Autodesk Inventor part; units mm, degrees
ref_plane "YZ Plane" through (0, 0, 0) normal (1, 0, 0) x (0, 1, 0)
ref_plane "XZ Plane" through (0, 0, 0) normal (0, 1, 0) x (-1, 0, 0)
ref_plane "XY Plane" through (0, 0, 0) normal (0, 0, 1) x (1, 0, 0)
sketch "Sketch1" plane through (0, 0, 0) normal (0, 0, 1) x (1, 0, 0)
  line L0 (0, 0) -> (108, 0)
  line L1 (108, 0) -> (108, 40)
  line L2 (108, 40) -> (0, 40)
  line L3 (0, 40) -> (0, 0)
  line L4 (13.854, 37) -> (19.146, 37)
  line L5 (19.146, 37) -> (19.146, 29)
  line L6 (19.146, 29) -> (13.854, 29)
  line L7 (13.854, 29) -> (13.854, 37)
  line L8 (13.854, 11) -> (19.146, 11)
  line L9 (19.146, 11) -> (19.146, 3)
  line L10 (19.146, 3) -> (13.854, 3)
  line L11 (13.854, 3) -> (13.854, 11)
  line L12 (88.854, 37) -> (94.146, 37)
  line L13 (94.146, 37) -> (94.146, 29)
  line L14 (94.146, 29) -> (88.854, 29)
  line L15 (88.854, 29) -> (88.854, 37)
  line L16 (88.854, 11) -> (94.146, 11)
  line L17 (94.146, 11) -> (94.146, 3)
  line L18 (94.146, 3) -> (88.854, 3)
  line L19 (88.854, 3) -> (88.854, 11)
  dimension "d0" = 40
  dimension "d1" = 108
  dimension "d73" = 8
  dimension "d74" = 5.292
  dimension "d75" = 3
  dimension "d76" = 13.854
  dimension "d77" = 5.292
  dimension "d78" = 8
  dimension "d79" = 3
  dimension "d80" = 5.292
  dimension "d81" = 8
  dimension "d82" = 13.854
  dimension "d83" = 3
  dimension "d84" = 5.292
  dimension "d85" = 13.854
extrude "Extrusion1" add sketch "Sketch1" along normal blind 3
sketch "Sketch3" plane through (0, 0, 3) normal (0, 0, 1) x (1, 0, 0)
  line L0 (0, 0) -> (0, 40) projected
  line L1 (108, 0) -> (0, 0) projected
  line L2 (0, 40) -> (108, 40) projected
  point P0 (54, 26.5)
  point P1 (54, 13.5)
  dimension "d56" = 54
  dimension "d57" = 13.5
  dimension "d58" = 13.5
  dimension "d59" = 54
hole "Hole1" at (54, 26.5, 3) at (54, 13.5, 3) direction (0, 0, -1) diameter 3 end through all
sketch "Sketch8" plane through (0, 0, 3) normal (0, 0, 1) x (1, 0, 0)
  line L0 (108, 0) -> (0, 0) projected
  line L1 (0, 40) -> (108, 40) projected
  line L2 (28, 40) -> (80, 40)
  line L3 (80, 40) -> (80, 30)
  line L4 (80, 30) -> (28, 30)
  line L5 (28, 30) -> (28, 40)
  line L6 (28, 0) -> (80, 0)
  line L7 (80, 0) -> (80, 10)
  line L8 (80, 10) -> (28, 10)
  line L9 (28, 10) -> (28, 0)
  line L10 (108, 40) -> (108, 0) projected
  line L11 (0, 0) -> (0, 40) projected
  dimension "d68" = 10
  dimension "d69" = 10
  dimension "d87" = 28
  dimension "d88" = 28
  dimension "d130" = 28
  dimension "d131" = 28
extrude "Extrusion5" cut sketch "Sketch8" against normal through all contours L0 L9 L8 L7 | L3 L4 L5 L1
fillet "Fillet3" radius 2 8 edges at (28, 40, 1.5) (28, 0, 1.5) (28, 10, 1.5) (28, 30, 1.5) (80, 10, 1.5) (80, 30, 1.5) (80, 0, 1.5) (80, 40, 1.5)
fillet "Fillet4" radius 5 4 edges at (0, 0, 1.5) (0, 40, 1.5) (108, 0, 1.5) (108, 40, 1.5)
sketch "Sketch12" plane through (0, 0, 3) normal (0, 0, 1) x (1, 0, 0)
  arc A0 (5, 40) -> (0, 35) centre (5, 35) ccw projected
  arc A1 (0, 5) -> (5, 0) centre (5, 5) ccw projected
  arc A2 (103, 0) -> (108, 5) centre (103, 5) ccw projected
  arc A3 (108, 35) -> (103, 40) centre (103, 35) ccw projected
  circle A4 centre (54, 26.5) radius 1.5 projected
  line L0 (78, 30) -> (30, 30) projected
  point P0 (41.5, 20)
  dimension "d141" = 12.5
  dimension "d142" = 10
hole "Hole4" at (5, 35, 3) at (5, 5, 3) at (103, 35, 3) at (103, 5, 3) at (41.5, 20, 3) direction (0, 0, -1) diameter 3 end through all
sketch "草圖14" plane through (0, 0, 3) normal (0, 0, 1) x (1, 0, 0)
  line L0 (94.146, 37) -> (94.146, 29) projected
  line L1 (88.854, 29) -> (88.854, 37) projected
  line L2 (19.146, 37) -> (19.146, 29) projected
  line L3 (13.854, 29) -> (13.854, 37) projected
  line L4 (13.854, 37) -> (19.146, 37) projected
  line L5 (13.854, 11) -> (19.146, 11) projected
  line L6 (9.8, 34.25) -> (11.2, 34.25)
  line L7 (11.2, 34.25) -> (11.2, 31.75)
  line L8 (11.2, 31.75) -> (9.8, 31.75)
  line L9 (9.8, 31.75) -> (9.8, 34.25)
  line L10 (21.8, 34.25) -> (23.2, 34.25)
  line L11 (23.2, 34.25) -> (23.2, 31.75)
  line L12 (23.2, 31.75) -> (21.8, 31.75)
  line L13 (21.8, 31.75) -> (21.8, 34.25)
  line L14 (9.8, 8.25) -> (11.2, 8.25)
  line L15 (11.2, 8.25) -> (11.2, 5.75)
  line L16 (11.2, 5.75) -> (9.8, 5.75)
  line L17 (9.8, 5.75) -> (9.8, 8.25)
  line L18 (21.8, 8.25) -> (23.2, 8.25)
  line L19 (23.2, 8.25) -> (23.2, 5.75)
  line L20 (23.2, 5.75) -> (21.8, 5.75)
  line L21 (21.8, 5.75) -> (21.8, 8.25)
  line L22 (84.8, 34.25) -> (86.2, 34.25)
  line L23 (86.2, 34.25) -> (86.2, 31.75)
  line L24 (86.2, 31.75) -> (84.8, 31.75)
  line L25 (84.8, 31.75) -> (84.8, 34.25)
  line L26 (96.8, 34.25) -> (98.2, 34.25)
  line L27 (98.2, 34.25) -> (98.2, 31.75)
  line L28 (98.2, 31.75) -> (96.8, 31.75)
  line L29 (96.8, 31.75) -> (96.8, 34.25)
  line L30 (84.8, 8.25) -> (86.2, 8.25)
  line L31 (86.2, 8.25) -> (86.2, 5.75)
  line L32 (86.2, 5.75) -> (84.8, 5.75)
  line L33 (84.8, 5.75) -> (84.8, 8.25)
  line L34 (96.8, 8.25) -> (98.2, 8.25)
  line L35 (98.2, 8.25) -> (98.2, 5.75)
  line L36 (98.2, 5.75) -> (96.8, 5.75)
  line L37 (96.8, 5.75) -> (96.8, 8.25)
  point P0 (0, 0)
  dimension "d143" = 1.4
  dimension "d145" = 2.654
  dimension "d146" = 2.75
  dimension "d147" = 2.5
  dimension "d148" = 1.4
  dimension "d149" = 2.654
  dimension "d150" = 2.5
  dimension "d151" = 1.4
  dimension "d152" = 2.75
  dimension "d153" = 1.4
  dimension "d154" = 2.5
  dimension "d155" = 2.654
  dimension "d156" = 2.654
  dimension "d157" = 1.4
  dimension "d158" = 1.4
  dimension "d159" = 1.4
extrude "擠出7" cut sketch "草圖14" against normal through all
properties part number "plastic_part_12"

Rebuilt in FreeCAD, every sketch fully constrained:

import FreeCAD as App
import Part
import Sketcher
Q = App.Units.Quantity


def edges_at(feature, points):
    """Names of the edges that pass closest to the given points."""
    edges = feature.Shape.Edges
    near = lambda p: min(range(len(edges)), key=lambda i: edges[i].distToShape(Part.Vertex(*p))[0])
    return sorted({f"Edge{near(p) + 1}" for p in points})


def add_polygon(sketch, points):
    """Adds a closed chain of lines whose ends are joined by coincident constraints."""
    first, n = sketch.GeometryCount, len(points)
    for a, b in zip(points, points[1:] + points[:1]):
        sketch.addGeometry(Part.LineSegment(App.Vector(*a, 0), App.Vector(*b, 0)), False)
    for i in range(n):
        sketch.addConstraint(Sketcher.Constraint("Coincident", first + i, 2, first + (i + 1) % n, 1))

doc = App.newDocument("Part")
params = doc.addObject("Spreadsheet::Sheet", "Params")
for row, (alias, value) in enumerate([
    ("sketch1_width", "108 mm"),
    ("sketch1_height", "40 mm"),
    ("sketch1_height2", "8 mm"),
    ("pad1_length", "3 mm"),
    ("sketch2_diameter", "3 mm"),
    ("hole_diameter", "3 mm"),
    ("sketch3_height", "10 mm"),
    ("sketch3_width", "52 mm"),
    ("fillet_radius", "2 mm"),
    ("fillet2_radius", "5 mm"),
    ("sketch4_diameter", "3 mm"),
    ("hole2_diameter", "3 mm"),
    ("sketch5_width", "1.4 mm"),
    ("sketch5_height", "2.5 mm"),
], start=1):
    params.set(f"A{row}", alias)
    params.set(f"B{row}", "=" + value)
    params.setAlias(f"B{row}", alias)

body = doc.addObject("PartDesign::Body", "Body")

# Sketch on XY plane
sketch1 = body.newObject("Sketcher::SketchObject", "Sketch")
sketch1.AttachmentSupport = (doc.getObject("XY_Plane"), [""])
sketch1.MapMode = "FlatFace"
add_polygon(sketch1, [(0, 40), (0, 0), (108, 0), (108, 40)])  # lines 0-3
add_polygon(sketch1, [(14, 3), (14, 11), (19, 11), (19, 3)])  # lines 4-7
add_polygon(sketch1, [(89, 3), (89, 11), (94, 11), (94, 3)])  # lines 8-11
add_polygon(sketch1, [(14, 29), (14, 37), (19, 37), (19, 29)])  # lines 12-15
add_polygon(sketch1, [(89, 29), (89, 37), (94, 37), (94, 29)])  # lines 16-19
sketch1.addConstraint([
    Sketcher.Constraint("Vertical", 0),
    Sketcher.Constraint("Horizontal", 1),
    Sketcher.Constraint("Vertical", 2),
    Sketcher.Constraint("Horizontal", 3),
    Sketcher.Constraint("Vertical", 4),
    Sketcher.Constraint("Horizontal", 5),
    Sketcher.Constraint("Vertical", 6),
    Sketcher.Constraint("Horizontal", 7),
    Sketcher.Constraint("Vertical", 8),
    Sketcher.Constraint("Horizontal", 9),
    Sketcher.Constraint("Vertical", 10),
    Sketcher.Constraint("Horizontal", 11),
    Sketcher.Constraint("Vertical", 12),
    Sketcher.Constraint("Horizontal", 13),
    Sketcher.Constraint("Vertical", 14),
    Sketcher.Constraint("Horizontal", 15),
    Sketcher.Constraint("Vertical", 16),
    Sketcher.Constraint("Horizontal", 17),
    Sketcher.Constraint("Vertical", 18),
    Sketcher.Constraint("Horizontal", 19),
    Sketcher.Constraint("Coincident", 0, 2, -1, 1),
    Sketcher.Constraint("Horizontal", 5, 2, 8, 2),
    Sketcher.Constraint("Horizontal", 7, 2, 10, 2),
    Sketcher.Constraint("Horizontal", 13, 2, 16, 2),
    Sketcher.Constraint("Horizontal", 15, 2, 18, 2),
    Sketcher.Constraint("Vertical", 7, 2, 12, 2),
    Sketcher.Constraint("Vertical", 6, 2, 13, 2),
    Sketcher.Constraint("Vertical", 11, 2, 16, 2),
    Sketcher.Constraint("Vertical", 10, 2, 17, 2),
    Sketcher.Constraint("Equal", 7, 9),
    Sketcher.Constraint("Equal", 10, 12),
    Sketcher.Constraint("DistanceX", 1, 1, 1, 2, Q("108 mm")),
    Sketcher.Constraint("DistanceY", 0, 2, 0, 1, Q("40 mm")),
    Sketcher.Constraint("DistanceY", 4, 1, 4, 2, Q("8 mm")),
    Sketcher.Constraint("DistanceY", -1, 1, 6, 2, Q("3 mm")),
    Sketcher.Constraint("DistanceY", 12, 2, 3, 2, Q("3 mm")),
    Sketcher.Constraint("DistanceX", 5, 1, 5, 2, Q("5.292 mm")),
    Sketcher.Constraint("DistanceX", -1, 1, 4, 2, Q("13.854 mm")),
    Sketcher.Constraint("DistanceX", 4, 2, 8, 2, Q("75 mm")),
])
sketch1.setExpression("Constraints[51]", "Params.sketch1_width")
sketch1.setExpression("Constraints[52]", "Params.sketch1_height")
sketch1.setExpression("Constraints[53]", "Params.sketch1_height2")
pad1 = body.newObject("PartDesign::Pad", "Pad")
pad1.Profile = sketch1
pad1.setExpression("Length", "Params.pad1_length")

# Sketch on XY plane
sketch2 = body.newObject("Sketcher::SketchObject", "Sketch001")
sketch2.AttachmentSupport = (doc.getObject("XY_Plane"), [""])
sketch2.MapMode = "FlatFace"
sketch2.AttachmentOffset = App.Placement(App.Vector(0, 0, 3), App.Rotation())
sketch2.addGeometry([
    Part.Circle(App.Vector(54, 26.5, 0), App.Vector(0, 0, 1), 1.5),
    Part.Circle(App.Vector(54, 13.5, 0), App.Vector(0, 0, 1), 1.5),
], False)
sketch2.addConstraint([
    Sketcher.Constraint("Equal", 0, 1),
    Sketcher.Constraint("Vertical", 0, 3, 1, 3),
    Sketcher.Constraint("Diameter", 0, Q("3 mm")),
    Sketcher.Constraint("DistanceX", -1, 1, 0, 3, Q("54 mm")),
    Sketcher.Constraint("DistanceY", 1, 3, 0, 3, Q("13 mm")),
    Sketcher.Constraint("DistanceY", -1, 1, 0, 3, Q("26.5 mm")),
])
sketch2.setExpression("Constraints[2]", "Params.sketch2_diameter")
doc.recompute()
hole = body.newObject("PartDesign::Hole", "Hole")
hole.Profile = sketch2
hole.ThreadType = "None"
hole.setExpression("Diameter", "Params.hole_diameter")
hole.DepthType = "ThroughAll"

# Sketch on XY plane
sketch3 = body.newObject("Sketcher::SketchObject", "Sketch002")
sketch3.AttachmentSupport = (doc.getObject("XY_Plane"), [""])
sketch3.MapMode = "FlatFace"
sketch3.AttachmentOffset = App.Placement(App.Vector(0, 0, 3), App.Rotation())
add_polygon(sketch3, [(28, 0), (80, 0), (80, 10), (28, 10)])  # lines 0-3
add_polygon(sketch3, [(80, 30), (80, 40), (28, 40), (28, 30)])  # lines 4-7
sketch3.addConstraint([
    Sketcher.Constraint("Horizontal", 0),
    Sketcher.Constraint("Vertical", 1),
    Sketcher.Constraint("Horizontal", 2),
    Sketcher.Constraint("Vertical", 3),
    Sketcher.Constraint("Vertical", 4),
    Sketcher.Constraint("Horizontal", 5),
    Sketcher.Constraint("Vertical", 6),
    Sketcher.Constraint("Horizontal", 7),
    Sketcher.Constraint("PointOnObject", 0, 2, -1),
    Sketcher.Constraint("Vertical", 1, 2, 4, 2),
    Sketcher.Constraint("Vertical", 3, 2, 5, 2),
    Sketcher.Constraint("Equal", 3, 4),
    Sketcher.Constraint("DistanceY", 1, 1, 1, 2, Q("10 mm")),
    Sketcher.Constraint("DistanceX", -1, 1, 2, 2, Q("28 mm")),
    Sketcher.Constraint("DistanceX", 0, 1, 0, 2, Q("52 mm")),
    Sketcher.Constraint("DistanceY", -1, 1, 4, 2, Q("40 mm")),
])
sketch3.setExpression("Constraints[20]", "Params.sketch3_height")
sketch3.setExpression("Constraints[22]", "Params.sketch3_width")
pocket1 = body.newObject("PartDesign::Pocket", "Pocket")
pocket1.Profile = sketch3
pocket1.Type = "ThroughAll"
doc.recompute()

fillet = body.newObject("PartDesign::Fillet", "Fillet")
fillet.Base = (pocket1, edges_at(pocket1, [
    (28, 40, 1.5),
    (28, 0, 1.5),
    (28, 10, 1.5),
    (28, 30, 1.5),
    (80, 10, 1.5),
    (80, 30, 1.5),
    (80, 0, 1.5),
    (80, 40, 1.5),
]))
fillet.setExpression("Radius", "Params.fillet_radius")
doc.recompute()

fillet2 = body.newObject("PartDesign::Fillet", "Fillet001")
fillet2.Base = (fillet, edges_at(fillet, [
    (0, 0, 1.5),
    (0, 40, 1.5),
    (108, 0, 1.5),
    (108, 40, 1.5),
]))
fillet2.setExpression("Radius", "Params.fillet2_radius")

# Sketch on XY plane
sketch4 = body.newObject("Sketcher::SketchObject", "Sketch003")
sketch4.AttachmentSupport = (doc.getObject("XY_Plane"), [""])
sketch4.MapMode = "FlatFace"
sketch4.AttachmentOffset = App.Placement(App.Vector(0, 0, 3), App.Rotation())
sketch4.addGeometry([
    Part.Circle(App.Vector(5, 35, 0), App.Vector(0, 0, 1), 1.5),  # 0
    Part.Circle(App.Vector(5, 5, 0), App.Vector(0, 0, 1), 1.5),  # 1
    Part.Circle(App.Vector(103, 35, 0), App.Vector(0, 0, 1), 1.5),  # 2
    Part.Circle(App.Vector(103, 5, 0), App.Vector(0, 0, 1), 1.5),  # 3
    Part.Circle(App.Vector(41.5, 20, 0), App.Vector(0, 0, 1), 1.5),  # 4
], False)
sketch4.addConstraint([
    Sketcher.Constraint("Equal", 0, 1),
    Sketcher.Constraint("Equal", 1, 2),
    Sketcher.Constraint("Equal", 2, 3),
    Sketcher.Constraint("Equal", 3, 4),
    Sketcher.Constraint("Horizontal", 0, 3, 2, 3),
    Sketcher.Constraint("Horizontal", 1, 3, 3, 3),
    Sketcher.Constraint("Vertical", 0, 3, 1, 3),
    Sketcher.Constraint("Vertical", 2, 3, 3, 3),
    Sketcher.Constraint("Diameter", 0, Q("3 mm")),
    Sketcher.Constraint("DistanceX", -1, 1, 0, 3, Q("5 mm")),
    Sketcher.Constraint("DistanceY", -1, 1, 0, 3, Q("35 mm")),
    Sketcher.Constraint("DistanceY", -1, 1, 1, 3, Q("5 mm")),
    Sketcher.Constraint("DistanceX", -1, 1, 2, 3, Q("103 mm")),
    Sketcher.Constraint("DistanceY", -1, 1, 4, 3, Q("20 mm")),
    Sketcher.Constraint("DistanceX", -1, 1, 4, 3, Q("41.5 mm")),
])
sketch4.setExpression("Constraints[8]", "Params.sketch4_diameter")
doc.recompute()
hole2 = body.newObject("PartDesign::Hole", "Hole001")
hole2.Profile = sketch4
hole2.ThreadType = "None"
hole2.setExpression("Diameter", "Params.hole2_diameter")
hole2.DepthType = "ThroughAll"

# Sketch on XY plane
sketch5 = body.newObject("Sketcher::SketchObject", "Sketch004")
sketch5.AttachmentSupport = (doc.getObject("XY_Plane"), [""])
sketch5.MapMode = "FlatFace"
sketch5.AttachmentOffset = App.Placement(App.Vector(0, 0, 3), App.Rotation())
add_polygon(sketch5, [(11.2, 34.2), (9.8, 34.2), (9.8, 31.8), (11.2, 31.8)])  # lines 0-3
add_polygon(sketch5, [(23.2, 34.2), (21.8, 34.2), (21.8, 31.8), (23.2, 31.8)])  # lines 4-7
add_polygon(sketch5, [(11.2, 8.2), (9.8, 8.2), (9.8, 5.8), (11.2, 5.8)])  # lines 8-11
add_polygon(sketch5, [(23.2, 8.2), (21.8, 8.2), (21.8, 5.8), (23.2, 5.8)])  # lines 12-15
add_polygon(sketch5, [(86.2, 34.2), (84.8, 34.2), (84.8, 31.8), (86.2, 31.8)])  # lines 16-19
add_polygon(sketch5, [(98.2, 34.2), (96.8, 34.2), (96.8, 31.8), (98.2, 31.8)])  # lines 20-23
add_polygon(sketch5, [(86.2, 8.2), (84.8, 8.2), (84.8, 5.8), (86.2, 5.8)])  # lines 24-27
add_polygon(sketch5, [(98.2, 8.2), (96.8, 8.2), (96.8, 5.8), (98.2, 5.8)])  # lines 28-31
sketch5.addConstraint([
    Sketcher.Constraint("Horizontal", 0),
    Sketcher.Constraint("Vertical", 1),
    Sketcher.Constraint("Horizontal", 2),
    Sketcher.Constraint("Vertical", 3),
    Sketcher.Constraint("Horizontal", 4),
    Sketcher.Constraint("Vertical", 5),
    Sketcher.Constraint("Horizontal", 6),
    Sketcher.Constraint("Vertical", 7),
    Sketcher.Constraint("Horizontal", 8),
    Sketcher.Constraint("Vertical", 9),
    Sketcher.Constraint("Horizontal", 10),
    Sketcher.Constraint("Vertical", 11),
    Sketcher.Constraint("Horizontal", 12),
    Sketcher.Constraint("Vertical", 13),
    Sketcher.Constraint("Horizontal", 14),
    Sketcher.Constraint("Vertical", 15),
    Sketcher.Constraint("Horizontal", 16),
    Sketcher.Constraint("Vertical", 17),
    Sketcher.Constraint("Horizontal", 18),
    Sketcher.Constraint("Vertical", 19),
    Sketcher.Constraint("Horizontal", 20),
    Sketcher.Constraint("Vertical", 21),
    Sketcher.Constraint("Horizontal", 22),
    Sketcher.Constraint("Vertical", 23),
    Sketcher.Constraint("Horizontal", 24),
    Sketcher.Constraint("Vertical", 25),
    Sketcher.Constraint("Horizontal", 26),
    Sketcher.Constraint("Vertical", 27),
    Sketcher.Constraint("Horizontal", 28),
    Sketcher.Constraint("Vertical", 29),
    Sketcher.Constraint("Horizontal", 30),
    Sketcher.Constraint("Vertical", 31),
    Sketcher.Constraint("Horizontal", 3, 2, 4, 2),
    Sketcher.Constraint("Horizontal", 2, 2, 5, 2),
    Sketcher.Constraint("Horizontal", 11, 2, 12, 2),
    Sketcher.Constraint("Horizontal", 10, 2, 13, 2),
    Sketcher.Constraint("Horizontal", 7, 2, 16, 2),
    Sketcher.Constraint("Horizontal", 6, 2, 17, 2),
    Sketcher.Constraint("Horizontal", 19, 2, 20, 2),
    Sketcher.Constraint("Horizontal", 18, 2, 21, 2),
    Sketcher.Constraint("Horizontal", 15, 2, 24, 2),
    Sketcher.Constraint("Horizontal", 14, 2, 25, 2),
    Sketcher.Constraint("Horizontal", 27, 2, 28, 2),
    Sketcher.Constraint("Horizontal", 26, 2, 29, 2),
    Sketcher.Constraint("Vertical", 1, 2, 8, 2),
    Sketcher.Constraint("Vertical", 3, 2, 10, 2),
    Sketcher.Constraint("Vertical", 5, 2, 12, 2),
    Sketcher.Constraint("Vertical", 7, 2, 14, 2),
    Sketcher.Constraint("Vertical", 17, 2, 24, 2),
    Sketcher.Constraint("Vertical", 19, 2, 26, 2),
    Sketcher.Constraint("Vertical", 21, 2, 28, 2),
    Sketcher.Constraint("Vertical", 23, 2, 30, 2),
    Sketcher.Constraint("Equal", 2, 4),
    Sketcher.Constraint("Equal", 14, 16),
    Sketcher.Constraint("Equal", 18, 20),
    Sketcher.Constraint("Equal", 7, 9),
    Sketcher.Constraint("DistanceX", 0, 2, 0, 1, Q("1.4 mm")),
    Sketcher.Constraint("DistanceY", 1, 2, 1, 1, Q("2.5 mm")),
    Sketcher.Constraint("DistanceX", 0, 2, 4, 2, Q("12 mm")),
    Sketcher.Constraint("DistanceY", 8, 2, 0, 2, Q("26 mm")),
    Sketcher.Constraint("DistanceX", 4, 2, 16, 2, Q("63 mm")),
    Sketcher.Constraint("DistanceX", 16, 2, 20, 2, Q("12 mm")),
    Sketcher.Constraint("DistanceX", -1, 1, 0, 2, Q("9.8 mm")),
    Sketcher.Constraint("DistanceY", -1, 1, 0, 2, Q("34.25 mm")),
])
sketch5.setExpression("Constraints[88]", "Params.sketch5_width")
sketch5.setExpression("Constraints[89]", "Params.sketch5_height")
pocket2 = body.newObject("PartDesign::Pocket", "Pocket001")
pocket2.Profile = sketch5
pocket2.Type = "ThroughAll"

doc.recompute()
